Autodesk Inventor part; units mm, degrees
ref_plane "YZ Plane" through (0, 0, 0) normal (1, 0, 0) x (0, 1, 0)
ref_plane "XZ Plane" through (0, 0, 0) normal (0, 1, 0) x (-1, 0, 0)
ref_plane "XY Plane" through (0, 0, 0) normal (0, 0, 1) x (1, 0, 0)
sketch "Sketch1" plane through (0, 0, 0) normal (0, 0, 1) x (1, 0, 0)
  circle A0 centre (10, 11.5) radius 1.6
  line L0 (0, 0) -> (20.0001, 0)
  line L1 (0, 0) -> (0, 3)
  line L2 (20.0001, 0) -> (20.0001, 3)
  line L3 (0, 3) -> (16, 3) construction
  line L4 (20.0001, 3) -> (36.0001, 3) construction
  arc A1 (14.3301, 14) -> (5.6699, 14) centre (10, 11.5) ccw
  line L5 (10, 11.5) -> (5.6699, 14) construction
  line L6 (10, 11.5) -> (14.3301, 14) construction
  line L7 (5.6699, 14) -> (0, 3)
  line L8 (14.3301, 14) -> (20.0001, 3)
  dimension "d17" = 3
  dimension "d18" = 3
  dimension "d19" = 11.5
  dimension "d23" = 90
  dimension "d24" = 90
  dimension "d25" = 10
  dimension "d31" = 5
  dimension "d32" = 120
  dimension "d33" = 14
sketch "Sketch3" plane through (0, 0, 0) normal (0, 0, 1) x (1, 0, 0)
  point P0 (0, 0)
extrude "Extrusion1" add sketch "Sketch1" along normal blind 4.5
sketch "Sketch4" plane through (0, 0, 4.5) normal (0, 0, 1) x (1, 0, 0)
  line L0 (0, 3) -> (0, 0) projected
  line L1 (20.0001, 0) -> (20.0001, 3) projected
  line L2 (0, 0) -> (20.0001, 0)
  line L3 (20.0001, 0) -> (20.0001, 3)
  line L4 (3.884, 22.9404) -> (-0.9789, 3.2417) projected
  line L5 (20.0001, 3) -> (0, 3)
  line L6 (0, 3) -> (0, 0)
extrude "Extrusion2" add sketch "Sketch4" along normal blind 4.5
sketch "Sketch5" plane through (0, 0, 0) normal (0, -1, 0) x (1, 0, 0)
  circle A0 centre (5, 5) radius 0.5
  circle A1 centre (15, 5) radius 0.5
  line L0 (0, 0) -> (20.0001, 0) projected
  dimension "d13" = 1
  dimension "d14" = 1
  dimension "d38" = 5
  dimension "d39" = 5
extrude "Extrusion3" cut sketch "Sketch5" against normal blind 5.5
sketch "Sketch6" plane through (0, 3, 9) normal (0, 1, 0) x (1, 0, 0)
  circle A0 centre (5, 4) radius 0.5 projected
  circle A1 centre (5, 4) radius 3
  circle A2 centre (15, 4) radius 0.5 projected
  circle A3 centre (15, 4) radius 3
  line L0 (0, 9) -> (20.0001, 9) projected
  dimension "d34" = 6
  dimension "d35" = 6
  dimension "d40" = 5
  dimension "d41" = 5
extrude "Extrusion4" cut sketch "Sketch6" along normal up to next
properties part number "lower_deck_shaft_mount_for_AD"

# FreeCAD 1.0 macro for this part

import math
import FreeCAD as App
import Part
import Sketcher
from FreeCAD import Vector
Q = App.Units.Quantity

doc = App.newDocument("Part")
params = doc.addObject("Spreadsheet::Sheet", "Params")
for row, (alias, value) in enumerate([
    ("sketch1_radius", "5 mm"),
    ("sketch1_height", "3 mm"),
    ("sketch1_diameter", "3.2 mm"),
    ("pad1_length", "4.5 mm"),
    ("sketch2_width", "20 mm"),
    ("sketch2_height", "3 mm"),
    ("pad2_length", "4.5 mm"),
    ("sketch3_diameter", "1 mm"),
    ("pocket1_length", "5.5 mm"),
    ("sketch4_diameter", "6 mm"),
    ("sketch4_diameter2", "1 mm"),
    ("pocket2_length", "13.064 mm"),
], start=1):
    params.set(f"A{row}", alias)
    params.set(f"B{row}", "=" + value)
    params.setAlias(f"B{row}", alias)

body = doc.addObject("PartDesign::Body", "Body")

# Sketch on XY plane
sketch1 = doc.addObject("Sketcher::SketchObject", "Sketch")
body.addObject(sketch1)
sketch1.AttachmentSupport = (doc.XY_Plane, [""])
sketch1.MapMode = "FlatFace"
sketch1.addGeometry([
    Part.LineSegment(Vector(0, 3, 0), Vector(0, 0, 0)),  # 0
    Part.LineSegment(Vector(0, 0, 0), Vector(20, 0, 0)),  # 1
    Part.LineSegment(Vector(20, 0, 0), Vector(20, 3, 0)),  # 2
    Part.LineSegment(Vector(20, 3, 0), Vector(14.3, 14, 0)),  # 3
    Part.ArcOfCircle(Part.Circle(Vector(10, 11.5, 0), Vector(0, 0, 1), 5), math.radians(30), math.radians(150)),  # 4
    Part.LineSegment(Vector(5.7, 14, 0), Vector(0, 3, 0)),  # 5
    Part.Circle(Vector(10, 11.5, 0), Vector(0, 0, 1), 1.6),  # 6
], False)
sketch1.addConstraint([
    Sketcher.Constraint("Coincident", 0, 2, 1, 1),
    Sketcher.Constraint("Coincident", 1, 2, 2, 1),
    Sketcher.Constraint("Coincident", 2, 2, 3, 1),
    Sketcher.Constraint("Coincident", 3, 2, 4, 1),
    Sketcher.Constraint("Coincident", 4, 2, 5, 1),
    Sketcher.Constraint("Coincident", 5, 2, 0, 1),
    Sketcher.Constraint("Vertical", 0),
    Sketcher.Constraint("Horizontal", 1),
    Sketcher.Constraint("Vertical", 2),
    Sketcher.Constraint("Coincident", 0, 2, -1, 1),
    Sketcher.Constraint("Coincident", 6, 3, 4, 3),
    Sketcher.Constraint("Horizontal", 3, 2, 4, 2),
    Sketcher.Constraint("Horizontal", 2, 2, 5, 2),
    Sketcher.Constraint("Equal", 3, 5),
    Sketcher.Constraint("Radius", 4, Q("5 mm")),
    Sketcher.Constraint("DistanceY", 0, 2, 0, 1, Q("3 mm")),
    Sketcher.Constraint("DistanceX", -1, 1, 4, 3, Q("10 mm")),
    Sketcher.Constraint("DistanceY", -1, 1, 3, 2, Q("14 mm")),
    Sketcher.Constraint("Diameter", 6, Q("3.2 mm")),
    Sketcher.Constraint("DistanceY", -1, 1, 4, 3, Q("11.5 mm")),
])
sketch1.setExpression("Constraints[14]", "Params.sketch1_radius")
sketch1.setExpression("Constraints[15]", "Params.sketch1_height")
sketch1.setExpression("Constraints[18]", "Params.sketch1_diameter")
pad1 = doc.addObject("PartDesign::Pad", "Pad")
body.addObject(pad1)
pad1.Profile = sketch1
pad1.setExpression("Length", "Params.pad1_length")

# Sketch on XY plane
sketch2 = doc.addObject("Sketcher::SketchObject", "Sketch001")
body.addObject(sketch2)
sketch2.AttachmentSupport = (doc.XY_Plane, [""])
sketch2.MapMode = "FlatFace"
sketch2.AttachmentOffset = App.Placement(Vector(0, 0, 4.5), App.Rotation())
sketch2.addGeometry([
    Part.LineSegment(Vector(20, 3, 0), Vector(0, 3, 0)),
    Part.LineSegment(Vector(0, 3, 0), Vector(0, 0, 0)),
    Part.LineSegment(Vector(0, 0, 0), Vector(20, 0, 0)),
    Part.LineSegment(Vector(20, 0, 0), Vector(20, 3, 0)),
], False)
sketch2.addConstraint([
    Sketcher.Constraint("Coincident", 0, 2, 1, 1),
    Sketcher.Constraint("Coincident", 1, 2, 2, 1),
    Sketcher.Constraint("Coincident", 2, 2, 3, 1),
    Sketcher.Constraint("Coincident", 3, 2, 0, 1),
    Sketcher.Constraint("Horizontal", 0),
    Sketcher.Constraint("Vertical", 1),
    Sketcher.Constraint("Horizontal", 2),
    Sketcher.Constraint("Vertical", 3),
    Sketcher.Constraint("Coincident", 1, 2, -1, 1),
    Sketcher.Constraint("DistanceX", 0, 2, 0, 1, Q("20 mm")),
    Sketcher.Constraint("DistanceY", 1, 2, 1, 1, Q("3 mm")),
])
sketch2.setExpression("Constraints[9]", "Params.sketch2_width")
sketch2.setExpression("Constraints[10]", "Params.sketch2_height")
pad2 = doc.addObject("PartDesign::Pad", "Pad001")
body.addObject(pad2)
pad2.Profile = sketch2
pad2.setExpression("Length", "Params.pad2_length")

# Sketch on XZ plane
sketch3 = doc.addObject("Sketcher::SketchObject", "Sketch002")
body.addObject(sketch3)
sketch3.AttachmentSupport = (doc.XZ_Plane, [""])
sketch3.MapMode = "FlatFace"
sketch3.addGeometry([
    Part.Circle(Vector(5, 5, 0), Vector(0, 0, 1), 0.5),
    Part.Circle(Vector(15, 5, 0), Vector(0, 0, 1), 0.5),
], False)
sketch3.addConstraint([
    Sketcher.Constraint("Equal", 0, 1),
    Sketcher.Constraint("Horizontal", 0, 3, 1, 3),
    Sketcher.Constraint("Diameter", 0, Q("1 mm")),
    Sketcher.Constraint("DistanceX", -1, 1, 0, 3, Q("5 mm")),
    Sketcher.Constraint("DistanceY", -1, 1, 0, 3, Q("5 mm")),
    Sketcher.Constraint("DistanceX", -1, 1, 1, 3, Q("15 mm")),
])
sketch3.setExpression("Constraints[2]", "Params.sketch3_diameter")
pocket1 = doc.addObject("PartDesign::Pocket", "Pocket")
body.addObject(pocket1)
pocket1.Profile = sketch3
pocket1.setExpression("Length", "Params.pocket1_length")

# Sketch on XZ plane
sketch4 = doc.addObject("Sketcher::SketchObject", "Sketch003")
body.addObject(sketch4)
sketch4.AttachmentSupport = (doc.XZ_Plane, [""])
sketch4.MapMode = "FlatFace"
sketch4.AttachmentOffset = App.Placement(Vector(0, 0, -3), App.Rotation())
sketch4.addGeometry([
    Part.Circle(Vector(5, 5, 0), Vector(0, 0, 1), 3),
    Part.Circle(Vector(5, 5, 0), Vector(0, 0, 1), 0.5),
    Part.Circle(Vector(15, 5, 0), Vector(0, 0, 1), 3),
    Part.Circle(Vector(15, 5, 0), Vector(0, 0, 1), 0.5),
], False)
sketch4.addConstraint([
    Sketcher.Constraint("Coincident", 1, 3, 0, 3),
    Sketcher.Constraint("Coincident", 3, 3, 2, 3),
    Sketcher.Constraint("Equal", 0, 2),
    Sketcher.Constraint("Equal", 1, 3),
    Sketcher.Constraint("Horizontal", 1, 3, 2, 3),
    Sketcher.Constraint("Diameter", 0, Q("6 mm")),
    Sketcher.Constraint("Diameter", 1, Q("1 mm")),
    Sketcher.Constraint("DistanceX", -1, 1, 0, 3, Q("5 mm")),
    Sketcher.Constraint("DistanceY", -1, 1, 0, 3, Q("5 mm")),
    Sketcher.Constraint("DistanceX", -1, 1, 2, 3, Q("15 mm")),
])
sketch4.setExpression("Constraints[5]", "Params.sketch4_diameter")
sketch4.setExpression("Constraints[6]", "Params.sketch4_diameter2")
pocket2 = doc.addObject("PartDesign::Pocket", "Pocket001")
body.addObject(pocket2)
pocket2.Profile = sketch4
pocket2.setExpression("Length", "Params.pocket2_length")

doc.recompute()
